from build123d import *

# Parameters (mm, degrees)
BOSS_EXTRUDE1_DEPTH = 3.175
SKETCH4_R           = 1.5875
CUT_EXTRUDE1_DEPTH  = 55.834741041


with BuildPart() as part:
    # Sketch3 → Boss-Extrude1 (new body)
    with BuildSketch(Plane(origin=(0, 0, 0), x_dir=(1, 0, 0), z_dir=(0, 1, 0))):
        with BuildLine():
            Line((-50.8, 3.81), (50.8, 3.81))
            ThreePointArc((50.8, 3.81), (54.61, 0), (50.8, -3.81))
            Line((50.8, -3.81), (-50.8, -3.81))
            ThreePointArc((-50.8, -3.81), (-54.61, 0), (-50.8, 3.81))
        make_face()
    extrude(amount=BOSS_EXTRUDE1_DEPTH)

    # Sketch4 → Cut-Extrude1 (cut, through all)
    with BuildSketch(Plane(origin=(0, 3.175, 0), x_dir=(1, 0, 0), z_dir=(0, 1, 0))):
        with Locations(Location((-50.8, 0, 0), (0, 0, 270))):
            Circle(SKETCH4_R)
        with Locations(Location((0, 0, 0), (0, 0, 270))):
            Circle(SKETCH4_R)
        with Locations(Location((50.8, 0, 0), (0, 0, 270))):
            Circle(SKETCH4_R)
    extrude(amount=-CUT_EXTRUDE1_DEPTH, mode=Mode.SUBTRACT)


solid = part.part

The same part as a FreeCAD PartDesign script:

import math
import FreeCAD as App
import Part
import Sketcher

V = App.Vector
Q = App.Units.Quantity

doc = App.newDocument("Part")
params = doc.addObject("Spreadsheet::Sheet", "Params")
for row, (alias, value) in enumerate([
    ("sketch1_width", "4 in"),
    ("sketch1_radius", "0.15 in"),
    ("pad1_length", "0.125 in"),
    ("sketch2_diameter", "0.125 in"),
], start=1):
    params.set(f"A{row}", alias)
    params.set(f"B{row}", "=" + value)
    params.setAlias(f"B{row}", alias)

body = doc.addObject("PartDesign::Body", "Body")

sketch1 = doc.addObject("Sketcher::SketchObject", "Sketch")
body.addObject(sketch1)
sketch1.AttachmentSupport = (doc.XZ_Plane, [""])
sketch1.MapMode = "FlatFace"
sketch1.addGeometry([
    Part.LineSegment(V(50.8, -3.8, 0), V(-50.8, -3.8, 0)),
    Part.ArcOfCircle(Part.Circle(V(-50.8, 0, 0), V(0, 0, 1), 3.8), math.radians(90), math.radians(270)),
    Part.LineSegment(V(-50.8, 3.8, 0), V(50.8, 3.8, 0)),
    Part.ArcOfCircle(Part.Circle(V(50.8, 0, 0), V(0, 0, 1), 3.8), math.radians(-90), math.radians(90)),
], False)
sketch1.addConstraint([
    Sketcher.Constraint("Tangent", 0, 2, 1, 2),
    Sketcher.Constraint("Tangent", 1, 1, 2, 1),
    Sketcher.Constraint("Tangent", 2, 2, 3, 2),
    Sketcher.Constraint("Tangent", 3, 1, 0, 1),
    Sketcher.Constraint("Horizontal", 0),
    Sketcher.Constraint("Horizontal", 2),
    Sketcher.Constraint("Symmetric", 1, 3, 3, 3, -1, 1),
    Sketcher.Constraint("DistanceX", 0, 2, 0, 1, Q("4 in")),
    Sketcher.Constraint("Radius", 1, Q("0.15 in")),
])
sketch1.setExpression("Constraints[7]", "Params.sketch1_width")
sketch1.setExpression("Constraints[8]", "Params.sketch1_radius")
pad1 = doc.addObject("PartDesign::Pad", "Pad")
body.addObject(pad1)
pad1.Profile = sketch1
pad1.setExpression("Length", "Params.pad1_length")
pad1.Reversed = True

sketch2 = doc.addObject("Sketcher::SketchObject", "Sketch001")
body.addObject(sketch2)
sketch2.AttachmentSupport = (doc.XZ_Plane, [""])
sketch2.MapMode = "FlatFace"
sketch2.AttachmentOffset = App.Placement(V(0, 0, -0.125 * 25.4), App.Rotation())
sketch2.addGeometry([
    Part.Circle(V(-50.8, 0, 0), V(0, 0, 1), 1.6),
    Part.Circle(V(0, 0, 0), V(0, 0, 1), 1.6),
    Part.Circle(V(50.8, 0, 0), V(0, 0, 1), 1.6),
], False)
sketch2.addConstraint([
    Sketcher.Constraint("Coincident", 1, 3, -1, 1),
    Sketcher.Constraint("Equal", 0, 1),
    Sketcher.Constraint("Equal", 1, 2),
    Sketcher.Constraint("Symmetric", 0, 3, 2, 3, -1, 1),
    Sketcher.Constraint("PointOnObject", 0, 3, -1),
    Sketcher.Constraint("Diameter", 0, Q("0.125 in")),
    Sketcher.Constraint("DistanceX", 0, 3, -1, 1, Q("2 in")),
])
sketch2.setExpression("Constraints[5]", "Params.sketch2_diameter")
pocket1 = doc.addObject("PartDesign::Pocket", "Pocket")
body.addObject(pocket1)
pocket1.Profile = sketch2
pocket1.Type = "ThroughAll"
pocket1.Reversed = True

doc.recompute()
